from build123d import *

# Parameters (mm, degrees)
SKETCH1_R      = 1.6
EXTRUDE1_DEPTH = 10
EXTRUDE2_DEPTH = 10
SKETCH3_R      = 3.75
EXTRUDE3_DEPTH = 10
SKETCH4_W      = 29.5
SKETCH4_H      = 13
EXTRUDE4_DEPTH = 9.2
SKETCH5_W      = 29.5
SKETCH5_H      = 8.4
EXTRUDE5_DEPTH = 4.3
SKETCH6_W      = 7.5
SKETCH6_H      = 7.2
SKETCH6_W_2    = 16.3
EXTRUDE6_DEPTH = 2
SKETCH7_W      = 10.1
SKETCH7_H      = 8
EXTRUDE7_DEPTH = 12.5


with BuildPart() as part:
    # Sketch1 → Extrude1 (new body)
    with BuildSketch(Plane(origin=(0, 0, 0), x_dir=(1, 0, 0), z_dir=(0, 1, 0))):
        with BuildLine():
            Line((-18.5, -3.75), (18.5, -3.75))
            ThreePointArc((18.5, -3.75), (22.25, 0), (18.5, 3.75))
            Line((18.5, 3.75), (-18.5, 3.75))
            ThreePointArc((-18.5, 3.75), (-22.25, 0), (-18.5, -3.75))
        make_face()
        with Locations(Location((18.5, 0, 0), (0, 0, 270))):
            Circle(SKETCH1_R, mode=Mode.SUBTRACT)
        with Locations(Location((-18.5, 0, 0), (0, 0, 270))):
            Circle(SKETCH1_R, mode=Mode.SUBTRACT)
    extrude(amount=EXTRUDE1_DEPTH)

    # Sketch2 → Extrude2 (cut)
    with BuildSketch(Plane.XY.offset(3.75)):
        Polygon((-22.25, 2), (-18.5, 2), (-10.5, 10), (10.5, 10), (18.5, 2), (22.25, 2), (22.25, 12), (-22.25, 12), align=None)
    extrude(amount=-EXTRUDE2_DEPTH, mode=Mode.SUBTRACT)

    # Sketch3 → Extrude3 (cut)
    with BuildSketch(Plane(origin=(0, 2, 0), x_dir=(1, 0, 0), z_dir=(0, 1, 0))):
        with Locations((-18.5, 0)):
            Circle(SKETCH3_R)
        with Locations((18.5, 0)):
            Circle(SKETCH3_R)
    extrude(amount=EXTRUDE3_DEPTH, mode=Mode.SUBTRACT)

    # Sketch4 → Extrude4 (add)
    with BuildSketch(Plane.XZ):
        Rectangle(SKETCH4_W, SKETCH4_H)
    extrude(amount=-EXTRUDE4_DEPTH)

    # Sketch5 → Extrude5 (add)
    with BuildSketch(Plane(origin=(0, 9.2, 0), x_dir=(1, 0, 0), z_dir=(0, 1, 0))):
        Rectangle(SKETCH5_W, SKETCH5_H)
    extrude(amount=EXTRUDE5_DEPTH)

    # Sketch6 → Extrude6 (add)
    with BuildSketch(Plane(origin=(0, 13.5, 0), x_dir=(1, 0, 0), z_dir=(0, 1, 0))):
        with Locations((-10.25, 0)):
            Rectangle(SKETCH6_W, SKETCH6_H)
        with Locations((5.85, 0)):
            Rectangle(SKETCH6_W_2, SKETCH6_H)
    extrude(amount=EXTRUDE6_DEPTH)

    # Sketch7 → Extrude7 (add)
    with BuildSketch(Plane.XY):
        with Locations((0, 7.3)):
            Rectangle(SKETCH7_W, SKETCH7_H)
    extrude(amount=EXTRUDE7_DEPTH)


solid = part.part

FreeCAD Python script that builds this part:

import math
import FreeCAD as App
import Part
import Sketcher

V = App.Vector

doc = App.newDocument("Part")
body = doc.addObject("PartDesign::Body", "Body")

# Sketch on XZ plane
sketch1 = body.newObject("Sketcher::SketchObject", "Sketch")
sketch1.AttachmentSupport = (doc.getObject("XZ_Plane"), [""])
sketch1.MapMode = "FlatFace"
sketch1.addGeometry([
    Part.LineSegment(V(-18.5, 3.8, 0), V(18.5, 3.8, 0)),  # 0
    Part.ArcOfCircle(Part.Circle(V(18.5, 0, 0), V(0, 0, 1), 3.8), math.radians(-90), math.radians(90)),  # 1
    Part.LineSegment(V(18.5, -3.8, 0), V(-18.5, -3.8, 0)),  # 2
    Part.ArcOfCircle(Part.Circle(V(-18.5, 0, 0), V(0, 0, 1), 3.8), math.radians(90), math.radians(270)),  # 3
    Part.Circle(V(-18.5, 0, 0), V(0, 0, 1), 1.6),  # 4
    Part.Circle(V(18.5, 0, 0), V(0, 0, 1), 1.6),  # 5
], False)
sketch1.addConstraint([
    Sketcher.Constraint("Tangent", 0, 2, 1, 2),
    Sketcher.Constraint("Tangent", 1, 1, 2, 1),
    Sketcher.Constraint("Tangent", 2, 2, 3, 2),
    Sketcher.Constraint("Tangent", 3, 1, 0, 1),
    Sketcher.Constraint("Horizontal", 0),
    Sketcher.Constraint("Horizontal", 2),
    Sketcher.Constraint("Coincident", 4, 3, 3, 3),
    Sketcher.Constraint("Coincident", 5, 3, 1, 3),
    Sketcher.Constraint("Equal", 4, 5),
    Sketcher.Constraint("Symmetric", 1, 3, 3, 3, -1, 1),
    Sketcher.Constraint("Diameter", 4, 3.2),
    Sketcher.Constraint("DistanceX", 0, 1, 0, 2, 37.0),
    Sketcher.Constraint("Radius", 1, 3.75),
])
pad1 = body.newObject("PartDesign::Pad", "Pad")
pad1.Profile = sketch1
pad1.Length = 10
pad1.Reversed = True

# Sketch on XY plane
sketch2 = body.newObject("Sketcher::SketchObject", "Sketch001")
sketch2.AttachmentSupport = (doc.getObject("XY_Plane"), [""])
sketch2.MapMode = "FlatFace"
sketch2.AttachmentOffset = App.Placement(V(0, 0, 3.75), App.Rotation())
sketch2.addGeometry([
    Part.LineSegment(V(-22.2, 2, 0), V(-18.5, 2, 0)),  # 0
    Part.LineSegment(V(-18.5, 2, 0), V(-10.5, 10, 0)),  # 1
    Part.LineSegment(V(-10.5, 10, 0), V(10.5, 10, 0)),  # 2
    Part.LineSegment(V(10.5, 10, 0), V(18.5, 2, 0)),  # 3
    Part.LineSegment(V(18.5, 2, 0), V(22.2, 2, 0)),  # 4
    Part.LineSegment(V(22.2, 2, 0), V(22.2, 12, 0)),  # 5
    Part.LineSegment(V(22.2, 12, 0), V(-22.2, 12, 0)),  # 6
    Part.LineSegment(V(-22.2, 12, 0), V(-22.2, 2, 0)),  # 7
], False)
sketch2.addConstraint([
    Sketcher.Constraint("Coincident", 0, 2, 1, 1),
    Sketcher.Constraint("Coincident", 1, 2, 2, 1),
    Sketcher.Constraint("Coincident", 2, 2, 3, 1),
    Sketcher.Constraint("Coincident", 3, 2, 4, 1),
    Sketcher.Constraint("Coincident", 4, 2, 5, 1),
    Sketcher.Constraint("Coincident", 5, 2, 6, 1),
    Sketcher.Constraint("Coincident", 6, 2, 7, 1),
    Sketcher.Constraint("Coincident", 7, 2, 0, 1),
    Sketcher.Constraint("Horizontal", 0),
    Sketcher.Constraint("Horizontal", 2),
    Sketcher.Constraint("Horizontal", 4),
    Sketcher.Constraint("Vertical", 5),
    Sketcher.Constraint("Horizontal", 6),
    Sketcher.Constraint("Vertical", 7),
    Sketcher.Constraint("Symmetric", 0, 2, 3, 2, -2),
    Sketcher.Constraint("Perpendicular", 1, 3),
    Sketcher.Constraint("Equal", 0, 4),
    Sketcher.Constraint("Equal", 1, 3),
    Sketcher.Constraint("DistanceX", 2, 1, 2, 2, 21.0),
    Sketcher.Constraint("DistanceY", 5, 1, 5, 2, 10.0),
    Sketcher.Constraint("DistanceX", 6, 2, 6, 1, 44.5),
    Sketcher.Constraint("DistanceY", -1, 1, 0, 2, 2.0),
    Sketcher.Constraint("DistanceY", -1, 1, 1, 2, 10.0),
])
pocket1 = body.newObject("PartDesign::Pocket", "Pocket")
pocket1.Profile = sketch2
pocket1.Length = 10

# Sketch on XZ plane
sketch3 = body.newObject("Sketcher::SketchObject", "Sketch002")
sketch3.AttachmentSupport = (doc.getObject("XZ_Plane"), [""])
sketch3.MapMode = "FlatFace"
sketch3.AttachmentOffset = App.Placement(V(0, 0, -2), App.Rotation())
sketch3.addGeometry([
    Part.Circle(V(-18.5, 0, 0), V(0, 0, 1), 3.8),
    Part.Circle(V(18.5, 0, 0), V(0, 0, 1), 3.8),
], False)
sketch3.addConstraint([
    Sketcher.Constraint("Equal", 0, 1),
    Sketcher.Constraint("Symmetric", 0, 3, 1, 3, -1, 1),
    Sketcher.Constraint("PointOnObject", 0, 3, -1),
    Sketcher.Constraint("Diameter", 0, 7.5),
    Sketcher.Constraint("DistanceX", 0, 3, 1, 3, 37.0),
])
pocket2 = body.newObject("PartDesign::Pocket", "Pocket001")
pocket2.Profile = sketch3
pocket2.Length = 10

# Sketch on XZ plane
sketch4 = body.newObject("Sketcher::SketchObject", "Sketch003")
sketch4.AttachmentSupport = (doc.getObject("XZ_Plane"), [""])
sketch4.MapMode = "FlatFace"
sketch4.addGeometry([
    Part.LineSegment(V(-15, 6, 0), V(-15, -6, 0)),
    Part.LineSegment(V(-15, -6, 0), V(15, -6, 0)),
    Part.LineSegment(V(15, -6, 0), V(15, 6, 0)),
    Part.LineSegment(V(15, 6, 0), V(-15, 6, 0)),
], False)
sketch4.addConstraint([
    Sketcher.Constraint("Coincident", 0, 2, 1, 1),
    Sketcher.Constraint("Coincident", 1, 2, 2, 1),
    Sketcher.Constraint("Coincident", 2, 2, 3, 1),
    Sketcher.Constraint("Coincident", 3, 2, 0, 1),
    Sketcher.Constraint("Vertical", 0),
    Sketcher.Constraint("Horizontal", 1),
    Sketcher.Constraint("Vertical", 2),
    Sketcher.Constraint("Horizontal", 3),
    Sketcher.Constraint("Symmetric", 0, 2, 2, 2, -1, 1),
    Sketcher.Constraint("DistanceY", 0, 2, 0, 1, 13.0),
    Sketcher.Constraint("DistanceX", 1, 1, 1, 2, 29.5),
])
pad2 = body.newObject("PartDesign::Pad", "Pad001")
pad2.Profile = sketch4
pad2.Length = 9.2
pad2.Reversed = True

# Sketch on XZ plane
sketch5 = body.newObject("Sketcher::SketchObject", "Sketch004")
sketch5.AttachmentSupport = (doc.getObject("XZ_Plane"), [""])
sketch5.MapMode = "FlatFace"
sketch5.AttachmentOffset = App.Placement(V(0, 0, -9.2), App.Rotation())
sketch5.addGeometry([
    Part.LineSegment(V(-15, -4, 0), V(-15, 4, 0)),
    Part.LineSegment(V(-15, 4, 0), V(15, 4, 0)),
    Part.LineSegment(V(15, 4, 0), V(15, -4, 0)),
    Part.LineSegment(V(15, -4, 0), V(-15, -4, 0)),
], False)
sketch5.addConstraint([
    Sketcher.Constraint("Coincident", 0, 2, 1, 1),
    Sketcher.Constraint("Coincident", 1, 2, 2, 1),
    Sketcher.Constraint("Coincident", 2, 2, 3, 1),
    Sketcher.Constraint("Coincident", 3, 2, 0, 1),
    Sketcher.Constraint("Vertical", 0),
    Sketcher.Constraint("Horizontal", 1),
    Sketcher.Constraint("Vertical", 2),
    Sketcher.Constraint("Horizontal", 3),
    Sketcher.Constraint("Symmetric", 0, 2, 2, 2, -1, 1),
    Sketcher.Constraint("DistanceX", 1, 1, 1, 2, 29.5),
    Sketcher.Constraint("DistanceY", 0, 1, 0, 2, 8.4),
])
pad3 = body.newObject("PartDesign::Pad", "Pad002")
pad3.Profile = sketch5
pad3.Length = 4.3
pad3.Reversed = True

# Sketch on XZ plane
sketch6 = body.newObject("Sketcher::SketchObject", "Sketch005")
sketch6.AttachmentSupport = (doc.getObject("XZ_Plane"), [""])
sketch6.MapMode = "FlatFace"
sketch6.AttachmentOffset = App.Placement(V(0, 0, -13.5), App.Rotation())
sketch6.addGeometry([
    Part.LineSegment(V(-14, -4, 0), V(-14, 4, 0)),  # 0
    Part.LineSegment(V(-14, 4, 0), V(-6, 4, 0)),  # 1
    Part.LineSegment(V(-6, 4, 0), V(-6, -4, 0)),  # 2
    Part.LineSegment(V(-6, -4, 0), V(-14, -4, 0)),  # 3
    Part.LineSegment(V(-2, -4, 0), V(-2, 4, 0)),  # 4
    Part.LineSegment(V(-2, 4, 0), V(14, 4, 0)),  # 5
    Part.LineSegment(V(14, 4, 0), V(14, -4, 0)),  # 6
    Part.LineSegment(V(14, -4, 0), V(-2, -4, 0)),  # 7
], False)
sketch6.addConstraint([
    Sketcher.Constraint("Coincident", 0, 2, 1, 1),
    Sketcher.Constraint("Coincident", 1, 2, 2, 1),
    Sketcher.Constraint("Coincident", 2, 2, 3, 1),
    Sketcher.Constraint("Coincident", 3, 2, 0, 1),
    Sketcher.Constraint("Coincident", 4, 2, 5, 1),
    Sketcher.Constraint("Coincident", 5, 2, 6, 1),
    Sketcher.Constraint("Coincident", 6, 2, 7, 1),
    Sketcher.Constraint("Coincident", 7, 2, 4, 1),
    Sketcher.Constraint("Vertical", 0),
    Sketcher.Constraint("Horizontal", 1),
    Sketcher.Constraint("Vertical", 2),
    Sketcher.Constraint("Horizontal", 3),
    Sketcher.Constraint("Vertical", 4),
    Sketcher.Constraint("Horizontal", 5),
    Sketcher.Constraint("Vertical", 6),
    Sketcher.Constraint("Horizontal", 7),
    Sketcher.Constraint("Symmetric", 3, 2, 5, 2, -1, 1),
    Sketcher.Constraint("Horizontal", 1, 2, 4, 2),
    Sketcher.Constraint("Horizontal", 3, 2, 6, 2),
    Sketcher.Constraint("DistanceX", 1, 1, 1, 2, 7.5),
    Sketcher.Constraint("DistanceX", 5, 1, 5, 2, 16.3),
    Sketcher.Constraint("DistanceY", 0, 1, 0, 2, 7.2),
    Sketcher.Constraint("DistanceX", 0, 2, -1, 1, 14.0),
])
pad4 = body.newObject("PartDesign::Pad", "Pad003")
pad4.Profile = sketch6
pad4.Length = 2
pad4.Reversed = True

# Sketch on XY plane
sketch7 = body.newObject("Sketcher::SketchObject", "Sketch006")
sketch7.AttachmentSupport = (doc.getObject("XY_Plane"), [""])
sketch7.MapMode = "FlatFace"
sketch7.addGeometry([
    Part.LineSegment(V(-5, 11, 0), V(-5, 3, 0)),
    Part.LineSegment(V(-5, 3, 0), V(5, 3, 0)),
    Part.LineSegment(V(5, 3, 0), V(5, 11, 0)),
    Part.LineSegment(V(5, 11, 0), V(-5, 11, 0)),
], False)
sketch7.addConstraint([
    Sketcher.Constraint("Coincident", 0, 2, 1, 1),
    Sketcher.Constraint("Coincident", 1, 2, 2, 1),
    Sketcher.Constraint("Coincident", 2, 2, 3, 1),
    Sketcher.Constraint("Coincident", 3, 2, 0, 1),
    Sketcher.Constraint("Vertical", 0),
    Sketcher.Constraint("Horizontal", 1),
    Sketcher.Constraint("Vertical", 2),
    Sketcher.Constraint("Horizontal", 3),
    Sketcher.Constraint("DistanceY", 0, 2, 0, 1, 8.0),
    Sketcher.Constraint("DistanceX", 1, 1, 1, 2, 10.1),
    Sketcher.Constraint("DistanceY", -1, 1, 0, 2, 3.3),
    Sketcher.Constraint("DistanceX", 0, 2, -1, 1, 5.05),
])
pad5 = body.newObject("PartDesign::Pad", "Pad004")
pad5.Profile = sketch7
pad5.Length = 12.5

doc.recompute()
